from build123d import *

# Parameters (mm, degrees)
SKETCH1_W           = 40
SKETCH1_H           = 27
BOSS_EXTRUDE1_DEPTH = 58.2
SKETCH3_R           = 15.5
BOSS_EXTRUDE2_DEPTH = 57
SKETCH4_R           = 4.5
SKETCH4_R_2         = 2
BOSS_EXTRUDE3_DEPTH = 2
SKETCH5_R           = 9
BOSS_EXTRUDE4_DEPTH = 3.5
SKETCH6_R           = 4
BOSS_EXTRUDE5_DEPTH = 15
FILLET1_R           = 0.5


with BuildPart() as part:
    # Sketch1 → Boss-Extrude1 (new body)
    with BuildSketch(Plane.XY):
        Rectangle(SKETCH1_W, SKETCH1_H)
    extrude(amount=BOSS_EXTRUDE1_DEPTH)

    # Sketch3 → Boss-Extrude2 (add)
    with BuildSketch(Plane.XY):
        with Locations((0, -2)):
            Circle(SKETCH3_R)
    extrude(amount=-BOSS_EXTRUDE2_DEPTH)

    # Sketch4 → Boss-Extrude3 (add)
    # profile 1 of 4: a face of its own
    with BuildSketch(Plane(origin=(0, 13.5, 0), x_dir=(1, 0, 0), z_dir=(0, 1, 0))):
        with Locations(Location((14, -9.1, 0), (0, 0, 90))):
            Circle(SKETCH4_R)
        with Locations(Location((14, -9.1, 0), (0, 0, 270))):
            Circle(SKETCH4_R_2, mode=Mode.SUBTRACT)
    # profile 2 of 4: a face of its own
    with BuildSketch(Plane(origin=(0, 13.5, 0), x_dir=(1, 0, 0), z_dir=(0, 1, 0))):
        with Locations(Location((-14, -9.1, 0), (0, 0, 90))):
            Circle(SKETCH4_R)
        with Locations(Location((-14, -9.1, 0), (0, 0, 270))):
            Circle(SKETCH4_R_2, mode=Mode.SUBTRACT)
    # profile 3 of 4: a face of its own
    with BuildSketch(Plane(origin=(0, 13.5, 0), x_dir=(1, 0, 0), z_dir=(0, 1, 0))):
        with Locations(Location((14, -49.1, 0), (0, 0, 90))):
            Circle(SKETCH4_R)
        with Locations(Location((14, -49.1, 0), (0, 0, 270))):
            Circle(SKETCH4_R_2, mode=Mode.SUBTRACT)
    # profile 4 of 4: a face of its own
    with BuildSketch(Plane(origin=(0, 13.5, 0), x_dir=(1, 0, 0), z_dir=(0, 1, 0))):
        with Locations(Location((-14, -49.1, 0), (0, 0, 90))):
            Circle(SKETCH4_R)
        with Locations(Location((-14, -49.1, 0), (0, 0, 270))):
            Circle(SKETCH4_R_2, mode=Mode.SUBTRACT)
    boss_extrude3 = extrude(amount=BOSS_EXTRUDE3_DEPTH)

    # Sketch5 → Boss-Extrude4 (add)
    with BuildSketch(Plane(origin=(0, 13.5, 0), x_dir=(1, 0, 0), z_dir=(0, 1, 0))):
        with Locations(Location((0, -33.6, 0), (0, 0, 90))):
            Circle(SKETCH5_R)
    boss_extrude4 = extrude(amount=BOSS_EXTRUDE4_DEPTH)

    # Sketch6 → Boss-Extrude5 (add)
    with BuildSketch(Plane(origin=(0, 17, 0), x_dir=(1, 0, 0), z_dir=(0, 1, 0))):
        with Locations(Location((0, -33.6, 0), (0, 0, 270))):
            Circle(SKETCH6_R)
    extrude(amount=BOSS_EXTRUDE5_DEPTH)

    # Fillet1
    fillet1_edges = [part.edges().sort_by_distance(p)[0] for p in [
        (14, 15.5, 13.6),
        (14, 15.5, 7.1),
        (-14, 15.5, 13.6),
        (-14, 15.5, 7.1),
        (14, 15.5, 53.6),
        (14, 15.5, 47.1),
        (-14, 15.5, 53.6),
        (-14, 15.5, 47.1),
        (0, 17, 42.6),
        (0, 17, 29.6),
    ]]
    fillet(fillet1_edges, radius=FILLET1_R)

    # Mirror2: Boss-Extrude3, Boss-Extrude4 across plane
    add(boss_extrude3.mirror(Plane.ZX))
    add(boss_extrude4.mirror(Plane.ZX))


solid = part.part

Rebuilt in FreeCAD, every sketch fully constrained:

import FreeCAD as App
import Part
import Sketcher


def edges_at(feature, points):
    """Names of the edges that pass closest to the given points."""
    edges = feature.Shape.Edges
    near = lambda p: min(range(len(edges)), key=lambda i: edges[i].distToShape(Part.Vertex(*p))[0])
    return sorted({f"Edge{near(p) + 1}" for p in points})


def add_polygon(sketch, points):
    """Adds a closed chain of lines whose ends are joined by coincident constraints."""
    first, n = sketch.GeometryCount, len(points)
    for a, b in zip(points, points[1:] + points[:1]):
        sketch.addGeometry(Part.LineSegment(App.Vector(*a, 0), App.Vector(*b, 0)), False)
    for i in range(n):
        sketch.addConstraint(Sketcher.Constraint("Coincident", first + i, 2, first + (i + 1) % n, 1))

doc = App.newDocument("Part")
params = doc.addObject("Spreadsheet::Sheet", "Params")
for row, (alias, value) in enumerate([
    ("sketch1_width", "40 mm"),
    ("sketch1_height", "27 mm"),
    ("pad1_length", "58.2 mm"),
    ("sketch2_diameter", "31 mm"),
    ("pad2_length", "57 mm"),
    ("sketch3_diameter", "9 mm"),
    ("sketch3_diameter2", "4 mm"),
    ("pad3_length", "2 mm"),
    ("sketch4_diameter", "18 mm"),
    ("pad4_length", "3.5 mm"),
    ("sketch5_diameter", "8 mm"),
    ("pad5_length", "15 mm"),
    ("fillet_radius", "0.5 mm"),
], start=1):
    params.set(f"A{row}", alias)
    params.set(f"B{row}", "=" + value)
    params.setAlias(f"B{row}", alias)

body = doc.addObject("PartDesign::Body", "Body")

sketch1 = doc.addObject("Sketcher::SketchObject", "Sketch")
body.addObject(sketch1)
sketch1.AttachmentSupport = (doc.XY_Plane, [""])
sketch1.MapMode = "FlatFace"
add_polygon(sketch1, [(-20, 14), (-20, -14), (20, -14), (20, 14)])
sketch1.addConstraint([
    Sketcher.Constraint("Vertical", 0),
    Sketcher.Constraint("Horizontal", 1),
    Sketcher.Constraint("Vertical", 2),
    Sketcher.Constraint("Horizontal", 3),
    Sketcher.Constraint("Symmetric", 0, 2, 2, 2, -1, 1),
    Sketcher.Constraint("DistanceX", 1, 1, 1, 2, 40.0),
    Sketcher.Constraint("DistanceY", 0, 2, 0, 1, 27.0),
])
sketch1.setExpression("Constraints[9]", "Params.sketch1_width")
sketch1.setExpression("Constraints[10]", "Params.sketch1_height")
pad1 = doc.addObject("PartDesign::Pad", "Pad")
body.addObject(pad1)
pad1.Profile = sketch1
pad1.setExpression("Length", "Params.pad1_length")

sketch2 = doc.addObject("Sketcher::SketchObject", "Sketch001")
body.addObject(sketch2)
sketch2.AttachmentSupport = (doc.XY_Plane, [""])
sketch2.MapMode = "FlatFace"
sketch2.addGeometry(Part.Circle(App.Vector(0, -2, 0), App.Vector(0, 0, 1), 16), False)
sketch2.addConstraint([
    Sketcher.Constraint("PointOnObject", 0, 3, -2),
    Sketcher.Constraint("Diameter", 0, 31.0),
    Sketcher.Constraint("DistanceY", 0, 3, -1, 1, 2.0),
])
sketch2.setExpression("Constraints[1]", "Params.sketch2_diameter")
pad2 = doc.addObject("PartDesign::Pad", "Pad001")
body.addObject(pad2)
pad2.Profile = sketch2
pad2.setExpression("Length", "Params.pad2_length")
pad2.Reversed = True

sketch3 = doc.addObject("Sketcher::SketchObject", "Sketch002")
body.addObject(sketch3)
sketch3.AttachmentSupport = (doc.XZ_Plane, [""])
sketch3.MapMode = "FlatFace"
sketch3.AttachmentOffset = App.Placement(App.Vector(0, 0, -13.5), App.Rotation())
sketch3.addGeometry([
    Part.Circle(App.Vector(14, 9.1, 0), App.Vector(0, 0, 1), 4.5),
    Part.Circle(App.Vector(14, 9.1, 0), App.Vector(0, 0, 1), 2),
    Part.Circle(App.Vector(-14, 9.1, 0), App.Vector(0, 0, 1), 4.5),
    Part.Circle(App.Vector(-14, 9.1, 0), App.Vector(0, 0, 1), 2),
    Part.Circle(App.Vector(14, 49.1, 0), App.Vector(0, 0, 1), 4.5),
    Part.Circle(App.Vector(14, 49.1, 0), App.Vector(0, 0, 1), 2),
    Part.Circle(App.Vector(-14, 49.1, 0), App.Vector(0, 0, 1), 4.5),
    Part.Circle(App.Vector(-14, 49.1, 0), App.Vector(0, 0, 1), 2),
], False)
sketch3.addConstraint([
    Sketcher.Constraint("Coincident", 1, 3, 0, 3),
    Sketcher.Constraint("Coincident", 3, 3, 2, 3),
    Sketcher.Constraint("Coincident", 5, 3, 4, 3),
    Sketcher.Constraint("Coincident", 7, 3, 6, 3),
    Sketcher.Constraint("Equal", 0, 2),
    Sketcher.Constraint("Equal", 1, 3),
    Sketcher.Constraint("Equal", 2, 4),
    Sketcher.Constraint("Equal", 3, 5),
    Sketcher.Constraint("Equal", 4, 6),
    Sketcher.Constraint("Equal", 5, 7),
    Sketcher.Constraint("Symmetric", 0, 3, 2, 3, -2),
    Sketcher.Constraint("Symmetric", 4, 3, 6, 3, -2),
    Sketcher.Constraint("Vertical", 1, 3, 4, 3),
    Sketcher.Constraint("Diameter", 0, 9.0),
    Sketcher.Constraint("Diameter", 1, 4.0),
    Sketcher.Constraint("DistanceX", -1, 1, 0, 3, 14.0),
    Sketcher.Constraint("DistanceY", 0, 3, 4, 3, 40.0),
    Sketcher.Constraint("DistanceY", -1, 1, 0, 3, 9.1),
])
sketch3.setExpression("Constraints[13]", "Params.sketch3_diameter")
sketch3.setExpression("Constraints[14]", "Params.sketch3_diameter2")
pad3 = doc.addObject("PartDesign::Pad", "Pad002")
body.addObject(pad3)
pad3.Profile = sketch3
pad3.setExpression("Length", "Params.pad3_length")
pad3.Reversed = True

sketch4 = doc.addObject("Sketcher::SketchObject", "Sketch003")
body.addObject(sketch4)
sketch4.AttachmentSupport = (doc.XZ_Plane, [""])
sketch4.MapMode = "FlatFace"
sketch4.AttachmentOffset = App.Placement(App.Vector(0, 0, -13.5), App.Rotation())
sketch4.addGeometry(Part.Circle(App.Vector(0, 34, 0), App.Vector(0, 0, 1), 9), False)
sketch4.addConstraint([
    Sketcher.Constraint("PointOnObject", 0, 3, -2),
    Sketcher.Constraint("Diameter", 0, 18.0),
    Sketcher.Constraint("DistanceY", -1, 1, 0, 3, 33.6),
])
sketch4.setExpression("Constraints[1]", "Params.sketch4_diameter")
pad4 = doc.addObject("PartDesign::Pad", "Pad003")
body.addObject(pad4)
pad4.Profile = sketch4
pad4.setExpression("Length", "Params.pad4_length")
pad4.Reversed = True

sketch5 = doc.addObject("Sketcher::SketchObject", "Sketch004")
body.addObject(sketch5)
sketch5.AttachmentSupport = (doc.XZ_Plane, [""])
sketch5.MapMode = "FlatFace"
sketch5.AttachmentOffset = App.Placement(App.Vector(0, 0, -17), App.Rotation())
sketch5.addGeometry(Part.Circle(App.Vector(0, 33.6, 0), App.Vector(0, 0, 1), 4), False)
sketch5.addConstraint([
    Sketcher.Constraint("PointOnObject", 0, 3, -2),
    Sketcher.Constraint("Diameter", 0, 8.0),
    Sketcher.Constraint("DistanceY", -1, 1, 0, 3, 33.6),
])
sketch5.setExpression("Constraints[1]", "Params.sketch5_diameter")
pad5 = doc.addObject("PartDesign::Pad", "Pad004")
body.addObject(pad5)
pad5.Profile = sketch5
pad5.setExpression("Length", "Params.pad5_length")
pad5.Reversed = True
doc.recompute()

fillet = doc.addObject("PartDesign::Fillet", "Fillet")
body.addObject(fillet)
fillet.Base = (pad5, edges_at(pad5, [
    (14, 15.5, 13.6),
    (14, 15.5, 7.1),
    (-14, 15.5, 13.6),
    (-14, 15.5, 7.1),
    (14, 15.5, 53.6),
    (14, 15.5, 47.1),
    (-14, 15.5, 53.6),
    (-14, 15.5, 47.1),
    (0, 17, 42.6),
    (0, 17, 29.6),
]))
fillet.setExpression("Radius", "Params.fillet_radius")
doc.recompute()

mirrored = doc.addObject("PartDesign::Mirrored", "Mirrored")
body.addObject(mirrored)
mirrored.Originals = [pad3, pad4]
mirrored.MirrorPlane = (doc.XZ_Plane, [""])
body.Tip = mirrored

doc.recompute()
